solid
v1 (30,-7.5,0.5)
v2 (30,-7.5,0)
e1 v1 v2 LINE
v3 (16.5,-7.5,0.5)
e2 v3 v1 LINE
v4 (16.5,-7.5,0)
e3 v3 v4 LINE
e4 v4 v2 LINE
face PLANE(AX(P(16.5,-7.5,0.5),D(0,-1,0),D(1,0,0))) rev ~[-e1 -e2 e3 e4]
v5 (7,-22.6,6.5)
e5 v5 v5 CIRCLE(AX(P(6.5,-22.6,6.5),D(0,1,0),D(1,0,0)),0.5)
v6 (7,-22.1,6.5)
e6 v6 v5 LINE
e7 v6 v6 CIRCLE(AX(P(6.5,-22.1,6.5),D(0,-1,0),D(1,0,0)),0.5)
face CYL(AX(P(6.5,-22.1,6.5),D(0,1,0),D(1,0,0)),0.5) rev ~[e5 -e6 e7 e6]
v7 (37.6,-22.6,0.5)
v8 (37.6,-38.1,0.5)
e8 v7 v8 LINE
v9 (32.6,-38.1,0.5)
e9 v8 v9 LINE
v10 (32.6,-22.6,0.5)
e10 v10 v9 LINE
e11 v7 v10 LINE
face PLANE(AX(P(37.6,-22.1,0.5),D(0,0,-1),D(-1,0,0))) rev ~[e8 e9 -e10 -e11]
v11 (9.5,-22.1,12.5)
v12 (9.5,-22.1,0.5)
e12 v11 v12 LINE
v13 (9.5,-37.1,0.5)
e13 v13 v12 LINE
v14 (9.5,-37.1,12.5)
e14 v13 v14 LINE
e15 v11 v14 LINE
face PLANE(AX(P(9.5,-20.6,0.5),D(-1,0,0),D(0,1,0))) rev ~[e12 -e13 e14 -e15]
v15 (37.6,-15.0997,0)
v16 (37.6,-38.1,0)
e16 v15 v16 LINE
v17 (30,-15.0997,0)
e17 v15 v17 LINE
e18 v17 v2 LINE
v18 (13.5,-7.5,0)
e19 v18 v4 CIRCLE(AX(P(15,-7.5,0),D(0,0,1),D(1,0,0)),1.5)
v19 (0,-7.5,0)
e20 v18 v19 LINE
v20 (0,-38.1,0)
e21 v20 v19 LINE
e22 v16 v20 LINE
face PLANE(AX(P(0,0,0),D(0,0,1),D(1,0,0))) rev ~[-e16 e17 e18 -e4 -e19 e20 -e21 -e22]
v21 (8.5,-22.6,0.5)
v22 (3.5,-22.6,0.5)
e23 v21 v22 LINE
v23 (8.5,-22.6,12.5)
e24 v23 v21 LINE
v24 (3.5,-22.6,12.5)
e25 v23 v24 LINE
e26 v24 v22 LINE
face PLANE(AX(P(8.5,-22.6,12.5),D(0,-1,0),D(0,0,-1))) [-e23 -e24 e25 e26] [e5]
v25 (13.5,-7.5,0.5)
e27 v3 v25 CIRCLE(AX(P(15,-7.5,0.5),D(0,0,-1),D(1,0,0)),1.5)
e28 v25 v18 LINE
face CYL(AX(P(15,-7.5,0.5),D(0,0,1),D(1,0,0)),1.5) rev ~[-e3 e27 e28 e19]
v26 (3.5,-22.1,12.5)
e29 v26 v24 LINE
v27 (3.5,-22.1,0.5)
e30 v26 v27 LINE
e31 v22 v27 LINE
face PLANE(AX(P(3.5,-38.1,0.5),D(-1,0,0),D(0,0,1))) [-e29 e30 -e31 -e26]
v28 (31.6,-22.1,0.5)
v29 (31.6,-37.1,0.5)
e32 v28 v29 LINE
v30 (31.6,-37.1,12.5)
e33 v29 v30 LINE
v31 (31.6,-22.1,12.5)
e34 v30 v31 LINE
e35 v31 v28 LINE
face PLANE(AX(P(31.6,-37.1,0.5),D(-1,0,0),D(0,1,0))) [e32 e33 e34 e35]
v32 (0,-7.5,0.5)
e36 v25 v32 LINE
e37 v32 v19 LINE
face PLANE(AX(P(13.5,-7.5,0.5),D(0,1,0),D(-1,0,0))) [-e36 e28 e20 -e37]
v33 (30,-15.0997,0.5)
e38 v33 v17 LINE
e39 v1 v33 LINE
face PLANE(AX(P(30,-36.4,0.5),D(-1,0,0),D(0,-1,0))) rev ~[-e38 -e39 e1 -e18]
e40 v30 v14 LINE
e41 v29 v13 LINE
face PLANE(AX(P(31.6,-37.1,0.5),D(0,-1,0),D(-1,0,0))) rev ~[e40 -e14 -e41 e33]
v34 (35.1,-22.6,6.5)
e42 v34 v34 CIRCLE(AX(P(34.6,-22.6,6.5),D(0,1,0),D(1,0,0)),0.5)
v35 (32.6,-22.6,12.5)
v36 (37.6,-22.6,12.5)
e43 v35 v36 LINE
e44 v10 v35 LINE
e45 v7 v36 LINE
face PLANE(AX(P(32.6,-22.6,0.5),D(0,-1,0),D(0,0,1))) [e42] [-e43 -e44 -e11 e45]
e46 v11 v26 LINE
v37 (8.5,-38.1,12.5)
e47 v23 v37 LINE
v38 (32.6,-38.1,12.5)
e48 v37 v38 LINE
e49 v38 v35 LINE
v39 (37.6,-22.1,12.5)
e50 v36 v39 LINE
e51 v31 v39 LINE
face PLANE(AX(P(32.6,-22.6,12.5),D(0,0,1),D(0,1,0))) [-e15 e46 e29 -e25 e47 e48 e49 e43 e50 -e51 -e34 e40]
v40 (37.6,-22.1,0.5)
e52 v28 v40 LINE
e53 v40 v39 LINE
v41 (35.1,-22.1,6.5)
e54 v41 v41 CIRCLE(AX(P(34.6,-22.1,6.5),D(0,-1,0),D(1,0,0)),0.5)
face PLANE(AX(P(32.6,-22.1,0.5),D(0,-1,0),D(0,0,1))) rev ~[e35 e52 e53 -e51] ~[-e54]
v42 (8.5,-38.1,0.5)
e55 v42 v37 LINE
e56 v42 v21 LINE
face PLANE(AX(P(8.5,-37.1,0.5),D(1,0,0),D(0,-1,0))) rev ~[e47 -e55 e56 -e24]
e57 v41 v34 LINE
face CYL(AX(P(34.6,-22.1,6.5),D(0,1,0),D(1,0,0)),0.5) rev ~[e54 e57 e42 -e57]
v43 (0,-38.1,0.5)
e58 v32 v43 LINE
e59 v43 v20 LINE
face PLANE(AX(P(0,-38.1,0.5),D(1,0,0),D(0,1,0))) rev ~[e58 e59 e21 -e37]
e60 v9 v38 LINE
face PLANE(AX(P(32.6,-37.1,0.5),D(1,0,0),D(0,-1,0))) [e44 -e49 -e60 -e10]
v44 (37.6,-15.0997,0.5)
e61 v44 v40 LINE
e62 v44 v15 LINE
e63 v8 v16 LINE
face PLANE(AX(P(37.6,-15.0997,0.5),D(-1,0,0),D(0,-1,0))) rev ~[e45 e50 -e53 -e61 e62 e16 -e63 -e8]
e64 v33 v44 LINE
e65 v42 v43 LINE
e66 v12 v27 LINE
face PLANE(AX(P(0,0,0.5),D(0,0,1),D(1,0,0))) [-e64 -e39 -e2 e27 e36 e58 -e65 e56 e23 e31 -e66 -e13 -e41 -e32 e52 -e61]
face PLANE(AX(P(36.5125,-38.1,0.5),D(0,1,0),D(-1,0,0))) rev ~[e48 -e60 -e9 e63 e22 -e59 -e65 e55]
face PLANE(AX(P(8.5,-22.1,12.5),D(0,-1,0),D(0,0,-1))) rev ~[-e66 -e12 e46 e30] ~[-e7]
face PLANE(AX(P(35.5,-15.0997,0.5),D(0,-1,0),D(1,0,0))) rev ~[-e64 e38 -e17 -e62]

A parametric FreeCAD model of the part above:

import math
import FreeCAD as App
import Part
import Sketcher
from FreeCAD import Vector
Q = App.Units.Quantity

doc = App.newDocument("Part")
body = doc.addObject("PartDesign::Body", "Body")

# Sketch on XY plane
sketch1 = doc.addObject("Sketcher::SketchObject", "Sketch")
body.addObject(sketch1)
sketch1.AttachmentSupport = (doc.XY_Plane, [""])
sketch1.MapMode = "FlatFace"
sketch1.addGeometry(Part.LineSegment(Vector(30, 0, 0), Vector(0, 0, 0)), False)
sketch1.addGeometry(Part.LineSegment(Vector(0, 0, 0), Vector(0, -36.4, 0)), False)
sketch1.addGeometry(Part.LineSegment(Vector(0, -36.4, 0), Vector(30, -36.4, 0)), False)
sketch1.addGeometry(Part.LineSegment(Vector(30, -36.4, 0), Vector(30, 0, 0)), False)
sketch1.addConstraint(Sketcher.Constraint("Coincident", 0, 2, 1, 1))
sketch1.addConstraint(Sketcher.Constraint("Coincident", 1, 2, 2, 1))
sketch1.addConstraint(Sketcher.Constraint("Coincident", 2, 2, 3, 1))
sketch1.addConstraint(Sketcher.Constraint("Coincident", 3, 2, 0, 1))
sketch1.addConstraint(Sketcher.Constraint("Horizontal", 0))
sketch1.addConstraint(Sketcher.Constraint("Vertical", 1))
sketch1.addConstraint(Sketcher.Constraint("Horizontal", 2))
sketch1.addConstraint(Sketcher.Constraint("Vertical", 3))
sketch1.addConstraint(Sketcher.Constraint("Coincident", 0, 2, -1, 1))
sketch1.addConstraint(Sketcher.Constraint("DistanceX", 0, 2, 0, 1, Q("30 mm")))
sketch1.addConstraint(Sketcher.Constraint("DistanceY", 1, 2, 1, 1, Q("36.4 mm")))
pad1 = doc.addObject("PartDesign::Pad", "Pad")
body.addObject(pad1)
pad1.Profile = sketch1
pad1.Length = 0.5

# Sketch on XY plane
sketch2 = doc.addObject("Sketcher::SketchObject", "Sketch001")
body.addObject(sketch2)
sketch2.AttachmentSupport = (doc.XY_Plane, [""])
sketch2.MapMode = "FlatFace"
sketch2.AttachmentOffset = App.Placement(Vector(0, 0, 0.5), App.Rotation())
sketch2.addGeometry(Part.Circle(Vector(15, -7.5, 0), Vector(0, 0, 1), 1.5), False)
sketch2.addConstraint(Sketcher.Constraint("Diameter", 0, Q("3 mm")))
sketch2.addConstraint(Sketcher.Constraint("DistanceY", 0, 3, -1, 1, Q("7.5 mm")))
sketch2.addConstraint(Sketcher.Constraint("DistanceX", -1, 1, 0, 3, Q("15 mm")))
pocket1 = doc.addObject("PartDesign::Pocket", "Pocket")
body.addObject(pocket1)
pocket1.Profile = sketch2
pocket1.Length = 0.5

# Sketch on XY plane
sketch3 = doc.addObject("Sketcher::SketchObject", "Sketch002")
body.addObject(sketch3)
sketch3.AttachmentSupport = (doc.XY_Plane, [""])
sketch3.MapMode = "FlatFace"
sketch3.AttachmentOffset = App.Placement(Vector(0, 0, 0.5), App.Rotation())
sketch3.addGeometry(Part.LineSegment(Vector(30, -36.4, 0), Vector(0, -36.4, 0)), False)
sketch3.addGeometry(Part.LineSegment(Vector(0, -36.4, 0), Vector(0, -37.1, 0)), False)
sketch3.addGeometry(Part.LineSegment(Vector(0, -37.1, 0), Vector(30, -37.1, 0)), False)
sketch3.addGeometry(Part.LineSegment(Vector(30, -37.1, 0), Vector(30, -36.4, 0)), False)
sketch3.addConstraint(Sketcher.Constraint("Coincident", 0, 2, 1, 1))
sketch3.addConstraint(Sketcher.Constraint("Coincident", 1, 2, 2, 1))
sketch3.addConstraint(Sketcher.Constraint("Coincident", 2, 2, 3, 1))
sketch3.addConstraint(Sketcher.Constraint("Coincident", 3, 2, 0, 1))
sketch3.addConstraint(Sketcher.Constraint("Horizontal", 0))
sketch3.addConstraint(Sketcher.Constraint("Vertical", 1))
sketch3.addConstraint(Sketcher.Constraint("Horizontal", 2))
sketch3.addConstraint(Sketcher.Constraint("Vertical", 3))
sketch3.addConstraint(Sketcher.Constraint("PointOnObject", 0, 2, -2))
sketch3.addConstraint(Sketcher.Constraint("DistanceY", 1, 2, 1, 1, Q("0.7 mm")))
sketch3.addConstraint(Sketcher.Constraint("DistanceX", 0, 2, 0, 1, Q("30 mm")))
sketch3.addConstraint(Sketcher.Constraint("DistanceY", 0, 2, -1, 1, Q("36.4 mm")))
pad2 = doc.addObject("PartDesign::Pad", "Pad001")
body.addObject(pad2)
pad2.Profile = sketch3
pad2.Length = 0.5
pad2.Reversed = True

# Sketch on XY plane
sketch4 = doc.addObject("Sketcher::SketchObject", "Sketch003")
body.addObject(sketch4)
sketch4.AttachmentSupport = (doc.XY_Plane, [""])
sketch4.MapMode = "FlatFace"
sketch4.AttachmentOffset = App.Placement(Vector(0, 0, 0.5), App.Rotation())
sketch4.addGeometry(Part.LineSegment(Vector(30, -17.1, 0), Vector(30, -37.1, 0)), False)
sketch4.addGeometry(Part.LineSegment(Vector(30, -37.1, 0), Vector(35.5, -37.1, 0)), False)
sketch4.addGeometry(Part.LineSegment(Vector(35.5, -37.1, 0), Vector(35.5, -17.1, 0)), False)
sketch4.addGeometry(Part.LineSegment(Vector(35.5, -17.1, 0), Vector(30, -17.1, 0)), False)
sketch4.addConstraint(Sketcher.Constraint("Coincident", 0, 2, 1, 1))
sketch4.addConstraint(Sketcher.Constraint("Coincident", 1, 2, 2, 1))
sketch4.addConstraint(Sketcher.Constraint("Coincident", 2, 2, 3, 1))
sketch4.addConstraint(Sketcher.Constraint("Coincident", 3, 2, 0, 1))
sketch4.addConstraint(Sketcher.Constraint("Vertical", 0))
sketch4.addConstraint(Sketcher.Constraint("Horizontal", 1))
sketch4.addConstraint(Sketcher.Constraint("Vertical", 2))
sketch4.addConstraint(Sketcher.Constraint("Horizontal", 3))
sketch4.addConstraint(Sketcher.Constraint("DistanceY", 0, 2, 0, 1, Q("20 mm")))
sketch4.addConstraint(Sketcher.Constraint("DistanceX", 1, 1, 1, 2, Q("5.5 mm")))
sketch4.addConstraint(Sketcher.Constraint("DistanceX", -1, 1, 0, 2, Q("30 mm")))
sketch4.addConstraint(Sketcher.Constraint("DistanceY", 0, 2, -1, 1, Q("37.1 mm")))
pad3 = doc.addObject("PartDesign::Pad", "Pad002")
body.addObject(pad3)
pad3.Profile = sketch4
pad3.Length = 0.5
pad3.Reversed = True

# Sketch on XY plane
sketch5 = doc.addObject("Sketcher::SketchObject", "Sketch004")
body.addObject(sketch5)
sketch5.AttachmentSupport = (doc.XY_Plane, [""])
sketch5.MapMode = "FlatFace"
sketch5.AttachmentOffset = App.Placement(Vector(0, 0, 0.5), App.Rotation())
sketch5.addGeometry(Part.LineSegment(Vector(35.5, -17.1, 0), Vector(35.5, -37.1, 0)), False)
sketch5.addGeometry(Part.LineSegment(Vector(35.5, -37.1, 0), Vector(36.5, -37.1, 0)), False)
sketch5.addGeometry(Part.LineSegment(Vector(36.5, -37.1, 0), Vector(36.5, -15.0997, 0)), False)
sketch5.addGeometry(Part.LineSegment(Vector(36.5, -15.0997, 0), Vector(30, -15.0997, 0)), False)
sketch5.addGeometry(Part.LineSegment(Vector(30, -15.0997, 0), Vector(30, -17.1, 0)), False)
sketch5.addGeometry(Part.LineSegment(Vector(30, -17.1, 0), Vector(35.5, -17.1, 0)), False)
sketch5.addConstraint(Sketcher.Constraint("Coincident", 0, 2, 1, 1))
sketch5.addConstraint(Sketcher.Constraint("Coincident", 1, 2, 2, 1))
sketch5.addConstraint(Sketcher.Constraint("Coincident", 2, 2, 3, 1))
sketch5.addConstraint(Sketcher.Constraint("Coincident", 3, 2, 4, 1))
sketch5.addConstraint(Sketcher.Constraint("Coincident", 4, 2, 5, 1))
sketch5.addConstraint(Sketcher.Constraint("Coincident", 5, 2, 0, 1))
sketch5.addConstraint(Sketcher.Constraint("Vertical", 0))
sketch5.addConstraint(Sketcher.Constraint("Horizontal", 1))
sketch5.addConstraint(Sketcher.Constraint("Vertical", 2))
sketch5.addConstraint(Sketcher.Constraint("Horizontal", 3))
sketch5.addConstraint(Sketcher.Constraint("Vertical", 4))
sketch5.addConstraint(Sketcher.Constraint("Horizontal", 5))
sketch5.addConstraint(Sketcher.Constraint("DistanceX", 1, 1, 1, 2, Q("1 mm")))
sketch5.addConstraint(Sketcher.Constraint("DistanceY", 0, 2, 0, 1, Q("20 mm")))
sketch5.addConstraint(Sketcher.Constraint("DistanceX", 3, 2, 3, 1, Q("6.5 mm")))
sketch5.addConstraint(Sketcher.Constraint("DistanceX", -1, 1, 3, 2, Q("30 mm")))
sketch5.addConstraint(Sketcher.Constraint("DistanceY", 0, 2, -1, 1, Q("37.1 mm")))
sketch5.addConstraint(Sketcher.Constraint("DistanceY", 2, 1, 2, 2, Q("22.0003 mm")))
pad4 = doc.addObject("PartDesign::Pad", "Pad003")
body.addObject(pad4)
pad4.Profile = sketch5
pad4.Length = 0.5
pad4.Reversed = True

# Sketch on XY plane
sketch6 = doc.addObject("Sketcher::SketchObject", "Sketch005")
body.addObject(sketch6)
sketch6.AttachmentSupport = (doc.XY_Plane, [""])
sketch6.MapMode = "FlatFace"
sketch6.AttachmentOffset = App.Placement(Vector(0, 0, 0.5), App.Rotation())
sketch6.addGeometry(Part.LineSegment(Vector(8.5, -37.1, 0), Vector(9.5, -37.1, 0)), False)
sketch6.addGeometry(Part.LineSegment(Vector(9.5, -37.1, 0), Vector(9.5, -20.1, 0)), False)
sketch6.addGeometry(Part.LineSegment(Vector(9.5, -20.1, 0), Vector(8.5, -20.1, 0)), False)
sketch6.addGeometry(Part.LineSegment(Vector(8.5, -20.1, 0), Vector(8.5, -37.1, 0)), False)
sketch6.addGeometry(Part.LineSegment(Vector(31.6, -37.1, 0), Vector(32.6, -37.1, 0)), False)
sketch6.addGeometry(Part.LineSegment(Vector(32.6, -37.1, 0), Vector(32.6, -20.1, 0)), False)
sketch6.addGeometry(Part.LineSegment(Vector(32.6, -20.1, 0), Vector(31.6, -20.1, 0)), False)
sketch6.addGeometry(Part.LineSegment(Vector(31.6, -20.1, 0), Vector(31.6, -37.1, 0)), False)
sketch6.addConstraint(Sketcher.Constraint("Coincident", 0, 2, 1, 1))
sketch6.addConstraint(Sketcher.Constraint("Coincident", 1, 2, 2, 1))
sketch6.addConstraint(Sketcher.Constraint("Coincident", 2, 2, 3, 1))
sketch6.addConstraint(Sketcher.Constraint("Coincident", 3, 2, 0, 1))
sketch6.addConstraint(Sketcher.Constraint("Coincident", 4, 2, 5, 1))
sketch6.addConstraint(Sketcher.Constraint("Coincident", 5, 2, 6, 1))
sketch6.addConstraint(Sketcher.Constraint("Coincident", 6, 2, 7, 1))
sketch6.addConstraint(Sketcher.Constraint("Coincident", 7, 2, 4, 1))
sketch6.addConstraint(Sketcher.Constraint("Horizontal", 0))
sketch6.addConstraint(Sketcher.Constraint("Vertical", 1))
sketch6.addConstraint(Sketcher.Constraint("Horizontal", 2))
sketch6.addConstraint(Sketcher.Constraint("Vertical", 3))
sketch6.addConstraint(Sketcher.Constraint("Horizontal", 4))
sketch6.addConstraint(Sketcher.Constraint("Vertical", 5))
sketch6.addConstraint(Sketcher.Constraint("Horizontal", 6))
sketch6.addConstraint(Sketcher.Constraint("Vertical", 7))
sketch6.addConstraint(Sketcher.Constraint("Horizontal", 3, 2, 4, 2))
sketch6.addConstraint(Sketcher.Constraint("Horizontal", 2, 2, 5, 2))
sketch6.addConstraint(Sketcher.Constraint("Equal", 2, 4))
sketch6.addConstraint(Sketcher.Constraint("DistanceX", 0, 1, 0, 2, Q("1 mm")))
sketch6.addConstraint(Sketcher.Constraint("DistanceX", -1, 1, 0, 2, Q("9.5 mm")))
sketch6.addConstraint(Sketcher.Constraint("DistanceY", 1, 1, 1, 2, Q("17 mm")))
sketch6.addConstraint(Sketcher.Constraint("DistanceY", 0, 2, -1, 1, Q("37.1 mm")))
sketch6.addConstraint(Sketcher.Constraint("DistanceX", -1, 1, 4, 2, Q("32.6 mm")))
pad5 = doc.addObject("PartDesign::Pad", "Pad004")
body.addObject(pad5)
pad5.Profile = sketch6
pad5.Length = 12

# Sketch on XY plane
sketch7 = doc.addObject("Sketcher::SketchObject", "Sketch006")
body.addObject(sketch7)
sketch7.AttachmentSupport = (doc.XY_Plane, [""])
sketch7.MapMode = "FlatFace"
sketch7.AttachmentOffset = App.Placement(Vector(0, 0, 0.5), App.Rotation())
sketch7.addGeometry(Part.LineSegment(Vector(36.5125, -37.1, 0), Vector(0, -37.1, 0)), False)
sketch7.addGeometry(Part.LineSegment(Vector(0, -37.1, 0), Vector(0, -38.1, 0)), False)
sketch7.addGeometry(Part.LineSegment(Vector(0, -38.1, 0), Vector(36.5125, -38.1, 0)), False)
sketch7.addGeometry(Part.LineSegment(Vector(36.5125, -38.1, 0), Vector(36.5125, -37.1, 0)), False)
sketch7.addConstraint(Sketcher.Constraint("Coincident", 0, 2, 1, 1))
sketch7.addConstraint(Sketcher.Constraint("Coincident", 1, 2, 2, 1))
sketch7.addConstraint(Sketcher.Constraint("Coincident", 2, 2, 3, 1))
sketch7.addConstraint(Sketcher.Constraint("Coincident", 3, 2, 0, 1))
sketch7.addConstraint(Sketcher.Constraint("Horizontal", 0))
sketch7.addConstraint(Sketcher.Constraint("Vertical", 1))
sketch7.addConstraint(Sketcher.Constraint("Horizontal", 2))
sketch7.addConstraint(Sketcher.Constraint("Vertical", 3))
sketch7.addConstraint(Sketcher.Constraint("PointOnObject", 0, 2, -2))
sketch7.addConstraint(Sketcher.Constraint("DistanceY", 1, 2, 1, 1, Q("1 mm")))
sketch7.addConstraint(Sketcher.Constraint("DistanceY", 0, 2, -1, 1, Q("37.1 mm")))
sketch7.addConstraint(Sketcher.Constraint("DistanceX", 0, 2, 0, 1, Q("36.5125 mm")))
pad6 = doc.addObject("PartDesign::Pad", "Pad005")
body.addObject(pad6)
pad6.Profile = sketch7
pad6.Length = 0.5
pad6.Reversed = True

# Sketch on XY plane
sketch8 = doc.addObject("Sketcher::SketchObject", "Sketch007")
body.addObject(sketch8)
sketch8.AttachmentSupport = (doc.XY_Plane, [""])
sketch8.MapMode = "FlatFace"
sketch8.AttachmentOffset = App.Placement(Vector(0, 0, 0.5), App.Rotation())
sketch8.addGeometry(Part.LineSegment(Vector(32.6, -37.1, 0), Vector(8.5, -37.1, 0)), False)
sketch8.addGeometry(Part.LineSegment(Vector(8.5, -37.1, 0), Vector(8.5, -38.1, 0)), False)
sketch8.addGeometry(Part.LineSegment(Vector(8.5, -38.1, 0), Vector(32.6, -38.1, 0)), False)
sketch8.addGeometry(Part.LineSegment(Vector(32.6, -38.1, 0), Vector(32.6, -37.1, 0)), False)
sketch8.addConstraint(Sketcher.Constraint("Coincident", 0, 2, 1, 1))
sketch8.addConstraint(Sketcher.Constraint("Coincident", 1, 2, 2, 1))
sketch8.addConstraint(Sketcher.Constraint("Coincident", 2, 2, 3, 1))
sketch8.addConstraint(Sketcher.Constraint("Coincident", 3, 2, 0, 1))
sketch8.addConstraint(Sketcher.Constraint("Horizontal", 0))
sketch8.addConstraint(Sketcher.Constraint("Vertical", 1))
sketch8.addConstraint(Sketcher.Constraint("Horizontal", 2))
sketch8.addConstraint(Sketcher.Constraint("Vertical", 3))
sketch8.addConstraint(Sketcher.Constraint("DistanceY", 1, 2, 1, 1, Q("1 mm")))
sketch8.addConstraint(Sketcher.Constraint("DistanceX", 0, 2, 0, 1, Q("24.1 mm")))
sketch8.addConstraint(Sketcher.Constraint("DistanceX", -1, 1, 0, 2, Q("8.5 mm")))
sketch8.addConstraint(Sketcher.Constraint("DistanceY", 0, 2, -1, 1, Q("37.1 mm")))
pad7 = doc.addObject("PartDesign::Pad", "Pad006")
body.addObject(pad7)
pad7.Profile = sketch8
pad7.Length = 12

# Sketch on XY plane
sketch9 = doc.addObject("Sketcher::SketchObject", "Sketch008")
body.addObject(sketch9)
sketch9.AttachmentSupport = (doc.XY_Plane, [""])
sketch9.MapMode = "FlatFace"
sketch9.AttachmentOffset = App.Placement(Vector(0, 0, 12.5), App.Rotation())
sketch9.addGeometry(Part.LineSegment(Vector(9.5, -22.1, 0), Vector(9.5, -20.1, 0)), False)
sketch9.addGeometry(Part.LineSegment(Vector(9.5, -20.1, 0), Vector(8.5, -20.1, 0)), False)
sketch9.addGeometry(Part.LineSegment(Vector(8.5, -20.1, 0), Vector(8.5, -22.1, 0)), False)
sketch9.addGeometry(Part.LineSegment(Vector(8.5, -22.1, 0), Vector(9.5, -22.1, 0)), False)
sketch9.addGeometry(Part.LineSegment(Vector(32.6, -22.1, 0), Vector(32.6, -20.1, 0)), False)
sketch9.addGeometry(Part.LineSegment(Vector(32.6, -20.1, 0), Vector(31.6, -20.1, 0)), False)
sketch9.addGeometry(Part.LineSegment(Vector(31.6, -20.1, 0), Vector(31.6, -22.1, 0)), False)
sketch9.addGeometry(Part.LineSegment(Vector(31.6, -22.1, 0), Vector(32.6, -22.1, 0)), False)
sketch9.addConstraint(Sketcher.Constraint("Coincident", 0, 2, 1, 1))
sketch9.addConstraint(Sketcher.Constraint("Coincident", 1, 2, 2, 1))
sketch9.addConstraint(Sketcher.Constraint("Coincident", 2, 2, 3, 1))
sketch9.addConstraint(Sketcher.Constraint("Coincident", 3, 2, 0, 1))
sketch9.addConstraint(Sketcher.Constraint("Coincident", 4, 2, 5, 1))
sketch9.addConstraint(Sketcher.Constraint("Coincident", 5, 2, 6, 1))
sketch9.addConstraint(Sketcher.Constraint("Coincident", 6, 2, 7, 1))
sketch9.addConstraint(Sketcher.Constraint("Coincident", 7, 2, 4, 1))
sketch9.addConstraint(Sketcher.Constraint("Vertical", 0))
sketch9.addConstraint(Sketcher.Constraint("Horizontal", 1))
sketch9.addConstraint(Sketcher.Constraint("Vertical", 2))
sketch9.addConstraint(Sketcher.Constraint("Horizontal", 3))
sketch9.addConstraint(Sketcher.Constraint("Vertical", 4))
sketch9.addConstraint(Sketcher.Constraint("Horizontal", 5))
sketch9.addConstraint(Sketcher.Constraint("Vertical", 6))
sketch9.addConstraint(Sketcher.Constraint("Horizontal", 7))
sketch9.addConstraint(Sketcher.Constraint("Horizontal", 1, 2, 4, 2))
sketch9.addConstraint(Sketcher.Constraint("Horizontal", 3, 2, 6, 2))
sketch9.addConstraint(Sketcher.Constraint("Equal", 3, 5))
sketch9.addConstraint(Sketcher.Constraint("DistanceY", 0, 1, 0, 2, Q("2 mm")))
sketch9.addConstraint(Sketcher.Constraint("DistanceX", 1, 2, 1, 1, Q("1 mm")))
sketch9.addConstraint(Sketcher.Constraint("DistanceX", -1, 1, 0, 2, Q("9.5 mm")))
sketch9.addConstraint(Sketcher.Constraint("DistanceY", 0, 2, -1, 1, Q("20.1 mm")))
sketch9.addConstraint(Sketcher.Constraint("DistanceX", -1, 1, 4, 2, Q("32.6 mm")))
pocket2 = doc.addObject("PartDesign::Pocket", "Pocket001")
body.addObject(pocket2)
pocket2.Profile = sketch9
pocket2.Length = 12

# Sketch on YZ plane
sketch10 = doc.addObject("Sketcher::SketchObject", "Sketch009")
body.addObject(sketch10)
sketch10.AttachmentSupport = (doc.YZ_Plane, [""])
sketch10.MapMode = "FlatFace"
sketch10.AttachmentOffset = App.Placement(Vector(0, 0, 8.5), App.Rotation())
sketch10.addGeometry(Part.LineSegment(Vector(-22.6, 12.5, 0), Vector(-22.1, 12.5, 0)), False)
sketch10.addGeometry(Part.LineSegment(Vector(-22.1, 12.5, 0), Vector(-22.1, 0.5, 0)), False)
sketch10.addGeometry(Part.LineSegment(Vector(-22.1, 0.5, 0), Vector(-22.6, 0.5, 0)), False)
sketch10.addGeometry(Part.LineSegment(Vector(-22.6, 0.5, 0), Vector(-22.6, 12.5, 0)), False)
sketch10.addConstraint(Sketcher.Constraint("Coincident", 0, 2, 1, 1))
sketch10.addConstraint(Sketcher.Constraint("Coincident", 1, 2, 2, 1))
sketch10.addConstraint(Sketcher.Constraint("Coincident", 2, 2, 3, 1))
sketch10.addConstraint(Sketcher.Constraint("Coincident", 3, 2, 0, 1))
sketch10.addConstraint(Sketcher.Constraint("Horizontal", 0))
sketch10.addConstraint(Sketcher.Constraint("Vertical", 1))
sketch10.addConstraint(Sketcher.Constraint("Horizontal", 2))
sketch10.addConstraint(Sketcher.Constraint("Vertical", 3))
sketch10.addConstraint(Sketcher.Constraint("DistanceX", 0, 1, 0, 2, Q("0.5 mm")))
sketch10.addConstraint(Sketcher.Constraint("DistanceY", -1, 1, 1, 2, Q("0.5 mm")))
sketch10.addConstraint(Sketcher.Constraint("DistanceY", 1, 2, 1, 1, Q("12 mm")))
sketch10.addConstraint(Sketcher.Constraint("DistanceX", 0, 2, -1, 1, Q("22.1 mm")))
pad8 = doc.addObject("PartDesign::Pad", "Pad007")
body.addObject(pad8)
pad8.Profile = sketch10
pad8.Length = 5
pad8.Reversed = True

# Sketch on YZ plane
sketch11 = doc.addObject("Sketcher::SketchObject", "Sketch010")
body.addObject(sketch11)
sketch11.AttachmentSupport = (doc.YZ_Plane, [""])
sketch11.MapMode = "FlatFace"
sketch11.AttachmentOffset = App.Placement(Vector(0, 0, 32.6), App.Rotation())
sketch11.addGeometry(Part.LineSegment(Vector(-22.6, 0.5, 0), Vector(-22.1, 0.5, 0)), False)
sketch11.addGeometry(Part.LineSegment(Vector(-22.1, 0.5, 0), Vector(-22.1, 12.5, 0)), False)
sketch11.addGeometry(Part.LineSegment(Vector(-22.1, 12.5, 0), Vector(-22.6, 12.5, 0)), False)
sketch11.addGeometry(Part.LineSegment(Vector(-22.6, 12.5, 0), Vector(-22.6, 0.5, 0)), False)
sketch11.addConstraint(Sketcher.Constraint("Coincident", 0, 2, 1, 1))
sketch11.addConstraint(Sketcher.Constraint("Coincident", 1, 2, 2, 1))
sketch11.addConstraint(Sketcher.Constraint("Coincident", 2, 2, 3, 1))
sketch11.addConstraint(Sketcher.Constraint("Coincident", 3, 2, 0, 1))
sketch11.addConstraint(Sketcher.Constraint("Horizontal", 0))
sketch11.addConstraint(Sketcher.Constraint("Vertical", 1))
sketch11.addConstraint(Sketcher.Constraint("Horizontal", 2))
sketch11.addConstraint(Sketcher.Constraint("Vertical", 3))
sketch11.addConstraint(Sketcher.Constraint("DistanceY", 1, 1, 1, 2, Q("12 mm")))
sketch11.addConstraint(Sketcher.Constraint("DistanceX", 0, 1, 0, 2, Q("0.5 mm")))
sketch11.addConstraint(Sketcher.Constraint("DistanceX", 0, 2, -1, 1, Q("22.1 mm")))
sketch11.addConstraint(Sketcher.Constraint("DistanceY", -1, 1, 0, 2, Q("0.5 mm")))
pad9 = doc.addObject("PartDesign::Pad", "Pad008")
body.addObject(pad9)
pad9.Profile = sketch11
pad9.Length = 5

# Sketch on XY plane
sketch12 = doc.addObject("Sketcher::SketchObject", "Sketch011")
body.addObject(sketch12)
sketch12.AttachmentSupport = (doc.XY_Plane, [""])
sketch12.MapMode = "FlatFace"
sketch12.AttachmentOffset = App.Placement(Vector(0, 0, 0.5), App.Rotation())
sketch12.addGeometry(Part.ArcOfCircle(Part.Circle(Vector(15, -7.5, 0), Vector(0, 0, 1), 1.5), math.radians(0), math.radians(180)), False)
sketch12.addGeometry(Part.LineSegment(Vector(16.5, -7.5, 0), Vector(30, -7.5, 0)), False)
sketch12.addGeometry(Part.LineSegment(Vector(30, -7.5, 0), Vector(30, 0, 0)), False)
sketch12.addGeometry(Part.LineSegment(Vector(30, 0, 0), Vector(0, 0, 0)), False)
sketch12.addGeometry(Part.LineSegment(Vector(0, 0, 0), Vector(0, -7.5, 0)), False)
sketch12.addGeometry(Part.LineSegment(Vector(0, -7.5, 0), Vector(13.5, -7.5, 0)), False)
sketch12.addConstraint(Sketcher.Constraint("Coincident", 0, 1, 1, 1))
sketch12.addConstraint(Sketcher.Constraint("Coincident", 1, 2, 2, 1))
sketch12.addConstraint(Sketcher.Constraint("Coincident", 2, 2, 3, 1))
sketch12.addConstraint(Sketcher.Constraint("Coincident", 3, 2, 4, 1))
sketch12.addConstraint(Sketcher.Constraint("Coincident", 4, 2, 5, 1))
sketch12.addConstraint(Sketcher.Constraint("Coincident", 5, 2, 0, 2))
sketch12.addConstraint(Sketcher.Constraint("Horizontal", 1))
sketch12.addConstraint(Sketcher.Constraint("Vertical", 2))
sketch12.addConstraint(Sketcher.Constraint("Horizontal", 3))
sketch12.addConstraint(Sketcher.Constraint("Vertical", 4))
sketch12.addConstraint(Sketcher.Constraint("Horizontal", 5))
sketch12.addConstraint(Sketcher.Constraint("Coincident", 3, 2, -1, 1))
sketch12.addConstraint(Sketcher.Constraint("Horizontal", 1, 2, 4, 2))
sketch12.addConstraint(Sketcher.Constraint("Equal", 1, 5))
sketch12.addConstraint(Sketcher.Constraint("Radius", 0, Q("1.5 mm")))
sketch12.addConstraint(Sketcher.Constraint("DistanceX", 3, 2, 3, 1, Q("30 mm")))
sketch12.addConstraint(Sketcher.Constraint("DistanceY", 2, 1, 2, 2, Q("7.5 mm")))
sketch12.addConstraint(Sketcher.Constraint("DistanceY", 0, 3, -1, 1, Q("7.5 mm")))
pocket3 = doc.addObject("PartDesign::Pocket", "Pocket002")
body.addObject(pocket3)
pocket3.Profile = sketch12
pocket3.Length = 5

# Sketch on XZ plane
sketch13 = doc.addObject("Sketcher::SketchObject", "Sketch012")
body.addObject(sketch13)
sketch13.AttachmentSupport = (doc.XZ_Plane, [""])
sketch13.MapMode = "FlatFace"
sketch13.AttachmentOffset = App.Placement(Vector(0, 0, 22.1), App.Rotation())
sketch13.addGeometry(Part.Circle(Vector(6.5, 6.5, 0), Vector(0, 0, 1), 0.5), False)
sketch13.addGeometry(Part.Circle(Vector(34.6, 6.5, 0), Vector(0, 0, 1), 0.5), False)
sketch13.addConstraint(Sketcher.Constraint("Equal", 0, 1))
sketch13.addConstraint(Sketcher.Constraint("Horizontal", 0, 3, 1, 3))
sketch13.addConstraint(Sketcher.Constraint("Diameter", 0, Q("1 mm")))
sketch13.addConstraint(Sketcher.Constraint("DistanceX", -1, 1, 0, 3, Q("6.5 mm")))
sketch13.addConstraint(Sketcher.Constraint("DistanceY", -1, 1, 0, 3, Q("6.5 mm")))
sketch13.addConstraint(Sketcher.Constraint("DistanceX", -1, 1, 1, 3, Q("34.6 mm")))
pocket4 = doc.addObject("PartDesign::Pocket", "Pocket003")
body.addObject(pocket4)
pocket4.Profile = sketch13
pocket4.Length = 5
pocket4.Reversed = True

# Sketch on XY plane
sketch14 = doc.addObject("Sketcher::SketchObject", "Sketch013")
body.addObject(sketch14)
sketch14.AttachmentSupport = (doc.XY_Plane, [""])
sketch14.MapMode = "FlatFace"
sketch14.AttachmentOffset = App.Placement(Vector(0, 0, 0.5), App.Rotation())
sketch14.addGeometry(Part.LineSegment(Vector(35.7225, -38.1, 0), Vector(35.7225, -15.0997, 0)), False)
sketch14.addGeometry(Part.LineSegment(Vector(35.7225, -15.0997, 0), Vector(37.6, -15.0997, 0)), False)
sketch14.addGeometry(Part.LineSegment(Vector(37.6, -15.0997, 0), Vector(37.6, -38.1, 0)), False)
sketch14.addGeometry(Part.LineSegment(Vector(37.6, -38.1, 0), Vector(35.7225, -38.1, 0)), False)
sketch14.addConstraint(Sketcher.Constraint("Coincident", 0, 2, 1, 1))
sketch14.addConstraint(Sketcher.Constraint("Coincident", 1, 2, 2, 1))
sketch14.addConstraint(Sketcher.Constraint("Coincident", 2, 2, 3, 1))
sketch14.addConstraint(Sketcher.Constraint("Coincident", 3, 2, 0, 1))
sketch14.addConstraint(Sketcher.Constraint("Vertical", 0))
sketch14.addConstraint(Sketcher.Constraint("Horizontal", 1))
sketch14.addConstraint(Sketcher.Constraint("Vertical", 2))
sketch14.addConstraint(Sketcher.Constraint("Horizontal", 3))
sketch14.addConstraint(Sketcher.Constraint("DistanceX", -1, 1, 1, 2, Q("37.6 mm")))
sketch14.addConstraint(Sketcher.Constraint("DistanceY", 2, 2, -1, 1, Q("38.1 mm")))
sketch14.addConstraint(Sketcher.Constraint("DistanceX", 1, 1, 1, 2, Q("1.8775 mm")))
sketch14.addConstraint(Sketcher.Constraint("DistanceY", 0, 1, 0, 2, Q("23.0003 mm")))
pad10 = doc.addObject("PartDesign::Pad", "Pad009")
body.addObject(pad10)
pad10.Profile = sketch14
pad10.Length = 0.5
pad10.Reversed = True

doc.recompute()
